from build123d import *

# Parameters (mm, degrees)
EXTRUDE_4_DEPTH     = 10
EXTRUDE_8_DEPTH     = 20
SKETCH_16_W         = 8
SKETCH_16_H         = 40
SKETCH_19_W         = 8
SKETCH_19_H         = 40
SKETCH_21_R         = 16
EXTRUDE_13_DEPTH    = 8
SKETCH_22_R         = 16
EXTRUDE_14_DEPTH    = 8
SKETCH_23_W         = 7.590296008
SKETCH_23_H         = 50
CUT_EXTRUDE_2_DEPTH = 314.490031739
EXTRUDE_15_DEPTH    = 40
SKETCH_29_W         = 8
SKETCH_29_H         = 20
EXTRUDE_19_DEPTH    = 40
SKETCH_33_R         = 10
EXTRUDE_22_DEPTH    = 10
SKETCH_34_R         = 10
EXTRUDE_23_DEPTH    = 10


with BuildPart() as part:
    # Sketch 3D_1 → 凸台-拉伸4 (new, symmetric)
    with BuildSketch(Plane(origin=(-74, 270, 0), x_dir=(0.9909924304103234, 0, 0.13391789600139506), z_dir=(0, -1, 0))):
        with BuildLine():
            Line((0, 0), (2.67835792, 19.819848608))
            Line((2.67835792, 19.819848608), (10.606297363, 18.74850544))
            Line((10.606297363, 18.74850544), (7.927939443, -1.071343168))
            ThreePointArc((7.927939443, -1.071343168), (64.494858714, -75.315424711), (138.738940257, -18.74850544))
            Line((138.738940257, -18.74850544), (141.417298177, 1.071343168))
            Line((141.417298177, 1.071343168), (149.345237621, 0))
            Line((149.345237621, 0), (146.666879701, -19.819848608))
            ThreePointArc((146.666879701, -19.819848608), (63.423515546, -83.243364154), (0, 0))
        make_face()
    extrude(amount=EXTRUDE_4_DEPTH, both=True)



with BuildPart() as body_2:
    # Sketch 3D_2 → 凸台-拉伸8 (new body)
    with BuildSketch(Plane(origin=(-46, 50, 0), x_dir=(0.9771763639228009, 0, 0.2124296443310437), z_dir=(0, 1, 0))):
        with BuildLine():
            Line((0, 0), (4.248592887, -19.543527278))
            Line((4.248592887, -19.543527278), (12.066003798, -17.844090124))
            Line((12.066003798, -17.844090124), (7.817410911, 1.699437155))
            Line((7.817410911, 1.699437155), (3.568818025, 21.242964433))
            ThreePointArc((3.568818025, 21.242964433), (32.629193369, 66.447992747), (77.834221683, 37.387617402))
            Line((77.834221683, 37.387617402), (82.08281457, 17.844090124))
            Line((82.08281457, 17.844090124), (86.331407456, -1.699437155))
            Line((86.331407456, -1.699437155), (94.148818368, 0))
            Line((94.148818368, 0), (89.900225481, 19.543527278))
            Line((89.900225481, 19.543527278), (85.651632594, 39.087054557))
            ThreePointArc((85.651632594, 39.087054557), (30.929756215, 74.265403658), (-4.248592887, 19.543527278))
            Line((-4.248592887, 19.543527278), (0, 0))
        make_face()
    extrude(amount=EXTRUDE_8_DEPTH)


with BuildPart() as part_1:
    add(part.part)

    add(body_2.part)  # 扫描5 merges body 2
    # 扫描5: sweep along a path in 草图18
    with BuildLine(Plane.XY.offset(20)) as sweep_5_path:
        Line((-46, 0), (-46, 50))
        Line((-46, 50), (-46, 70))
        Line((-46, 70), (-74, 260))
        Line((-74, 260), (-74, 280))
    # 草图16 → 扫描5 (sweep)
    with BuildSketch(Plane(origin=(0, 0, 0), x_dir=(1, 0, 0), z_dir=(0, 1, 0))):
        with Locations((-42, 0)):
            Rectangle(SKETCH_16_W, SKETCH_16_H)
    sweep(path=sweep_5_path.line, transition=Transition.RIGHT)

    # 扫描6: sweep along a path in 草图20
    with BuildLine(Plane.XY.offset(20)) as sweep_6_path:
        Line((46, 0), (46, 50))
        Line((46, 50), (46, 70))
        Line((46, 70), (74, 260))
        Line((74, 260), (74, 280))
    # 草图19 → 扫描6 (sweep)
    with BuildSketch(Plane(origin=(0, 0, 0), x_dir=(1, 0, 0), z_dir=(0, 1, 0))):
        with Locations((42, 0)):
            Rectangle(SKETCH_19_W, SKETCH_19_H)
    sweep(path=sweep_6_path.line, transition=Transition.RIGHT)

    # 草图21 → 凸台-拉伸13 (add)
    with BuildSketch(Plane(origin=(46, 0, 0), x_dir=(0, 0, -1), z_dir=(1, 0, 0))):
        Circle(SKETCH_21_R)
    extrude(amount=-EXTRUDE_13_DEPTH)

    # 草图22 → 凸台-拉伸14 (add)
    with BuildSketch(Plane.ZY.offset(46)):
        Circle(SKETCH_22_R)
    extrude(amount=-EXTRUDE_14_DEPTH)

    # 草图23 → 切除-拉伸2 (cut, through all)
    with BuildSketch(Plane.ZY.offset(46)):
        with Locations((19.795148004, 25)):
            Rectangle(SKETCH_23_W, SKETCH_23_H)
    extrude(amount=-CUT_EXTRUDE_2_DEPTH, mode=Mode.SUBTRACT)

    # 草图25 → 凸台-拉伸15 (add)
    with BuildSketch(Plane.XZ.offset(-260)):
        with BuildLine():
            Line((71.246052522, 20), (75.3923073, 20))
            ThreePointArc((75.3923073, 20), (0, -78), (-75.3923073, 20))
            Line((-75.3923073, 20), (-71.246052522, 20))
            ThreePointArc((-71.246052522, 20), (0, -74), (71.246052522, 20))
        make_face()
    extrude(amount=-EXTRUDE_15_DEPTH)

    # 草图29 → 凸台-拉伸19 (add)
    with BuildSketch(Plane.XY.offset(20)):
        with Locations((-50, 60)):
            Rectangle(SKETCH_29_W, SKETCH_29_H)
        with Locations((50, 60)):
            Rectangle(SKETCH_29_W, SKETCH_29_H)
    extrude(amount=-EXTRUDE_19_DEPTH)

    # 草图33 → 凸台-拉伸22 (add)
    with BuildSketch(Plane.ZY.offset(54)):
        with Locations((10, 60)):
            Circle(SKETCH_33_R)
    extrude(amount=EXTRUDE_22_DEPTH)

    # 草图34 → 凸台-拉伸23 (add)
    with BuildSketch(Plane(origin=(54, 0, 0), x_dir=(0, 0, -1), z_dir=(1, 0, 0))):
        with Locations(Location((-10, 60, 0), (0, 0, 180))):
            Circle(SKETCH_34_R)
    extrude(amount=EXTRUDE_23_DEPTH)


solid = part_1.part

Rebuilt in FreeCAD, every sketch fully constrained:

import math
import FreeCAD as App
import Part
import Sketcher

V = App.Vector
Q = App.Units.Quantity


def add_polygon(sketch, points):
    """Adds a closed chain of lines whose ends are joined by coincident constraints."""
    first, n = sketch.GeometryCount, len(points)
    for a, b in zip(points, points[1:] + points[:1]):
        sketch.addGeometry(Part.LineSegment(App.Vector(*a, 0), App.Vector(*b, 0)), False)
    for i in range(n):
        sketch.addConstraint(Sketcher.Constraint("Coincident", first + i, 2, first + (i + 1) % n, 1))

doc = App.newDocument("Part")
body = doc.addObject("PartDesign::Body", "Body")

# Sketch on XZ plane
sketch1 = body.newObject("Sketcher::SketchObject", "Sketch")
sketch1.AttachmentSupport = (doc.getObject("XZ_Plane"), [""])
sketch1.MapMode = "FlatFace"
sketch1.AttachmentOffset = App.Placement(V(0, 0, -270), App.Rotation())
sketch1.addGeometry([
    Part.LineSegment(V(-74, 20, 0), V(-74, 0, 0)),  # 0
    Part.ArcOfCircle(Part.Circle(V(0, 0, 0), V(0, 0, 1), 74), math.radians(-180), math.radians(0)),  # 1
    Part.LineSegment(V(74, 0, 0), V(74, 20, 0)),  # 2
    Part.LineSegment(V(74, 20, 0), V(66, 20, 0)),  # 3
    Part.LineSegment(V(66, 20, 0), V(66, 0, 0)),  # 4
    Part.ArcOfCircle(Part.Circle(V(0, 0, 0), V(0, 0, 1), 66), math.radians(-180), math.radians(0)),  # 5
    Part.LineSegment(V(-66, 0, 0), V(-66, 20, 0)),  # 6
    Part.LineSegment(V(-66, 20, 0), V(-74, 20, 0)),  # 7
], False)
sketch1.addConstraint([
    Sketcher.Constraint("Tangent", 0, 2, 1, 1),
    Sketcher.Constraint("Tangent", 1, 2, 2, 1),
    Sketcher.Constraint("Coincident", 2, 2, 3, 1),
    Sketcher.Constraint("Coincident", 3, 2, 4, 1),
    Sketcher.Constraint("Tangent", 4, 2, 5, 2),
    Sketcher.Constraint("Tangent", 5, 1, 6, 1),
    Sketcher.Constraint("Coincident", 6, 2, 7, 1),
    Sketcher.Constraint("Coincident", 7, 2, 0, 1),
    Sketcher.Constraint("Vertical", 0),
    Sketcher.Constraint("Vertical", 2),
    Sketcher.Constraint("Horizontal", 3),
    Sketcher.Constraint("Vertical", 4),
    Sketcher.Constraint("Vertical", 6),
    Sketcher.Constraint("Horizontal", 7),
    Sketcher.Constraint("Coincident", 1, 3, -1, 1),
    Sketcher.Constraint("Coincident", 5, 3, -1, 1),
    Sketcher.Constraint("Horizontal", 3, 2, 6, 2),
    Sketcher.Constraint("Radius", 1, Q("74 mm")),
    Sketcher.Constraint("Radius", 5, Q("66 mm")),
    Sketcher.Constraint("DistanceY", 0, 2, 0, 1, Q("20 mm")),
])
pad1 = body.newObject("PartDesign::Pad", "Pad")
pad1.Profile = sketch1
pad1.Length = 20
pad1.Midplane = True
body2 = doc.addObject("PartDesign::Body", "Body001")

# Sketch on XZ plane
sketch2 = body2.newObject("Sketcher::SketchObject", "Sketch001")
sketch2.AttachmentSupport = (doc.getObject("XZ_Plane001"), [""])
sketch2.MapMode = "FlatFace"
sketch2.AttachmentOffset = App.Placement(V(0, 0, -50), App.Rotation())
sketch2.addGeometry([
    Part.LineSegment(V(-46, 20, 0), V(-38, 20, 0)),  # 0
    Part.LineSegment(V(-38, 20, 0), V(-38, 0, 0)),  # 1
    Part.LineSegment(V(-38, 0, 0), V(-38, -20, 0)),  # 2
    Part.ArcOfCircle(Part.Circle(V(0, -20, 0), V(0, 0, 1), 38), math.radians(180), math.radians(360)),  # 3
    Part.LineSegment(V(38, -20, 0), V(38, 0, 0)),  # 4
    Part.LineSegment(V(38, 0, 0), V(38, 20, 0)),  # 5
    Part.LineSegment(V(38, 20, 0), V(46, 20, 0)),  # 6
    Part.LineSegment(V(46, 20, 0), V(46, 0, 0)),  # 7
    Part.LineSegment(V(46, 0, 0), V(46, -20, 0)),  # 8
    Part.ArcOfCircle(Part.Circle(V(0, -20, 0), V(0, 0, 1), 46), math.radians(180), math.radians(360)),  # 9
    Part.LineSegment(V(-46, -20, 0), V(-46, 20, 0)),  # 10
], False)
sketch2.addConstraint([
    Sketcher.Constraint("Coincident", 0, 2, 1, 1),
    Sketcher.Constraint("Coincident", 1, 2, 2, 1),
    Sketcher.Constraint("Tangent", 2, 2, 3, 1),
    Sketcher.Constraint("Tangent", 3, 2, 4, 1),
    Sketcher.Constraint("Coincident", 4, 2, 5, 1),
    Sketcher.Constraint("Coincident", 5, 2, 6, 1),
    Sketcher.Constraint("Coincident", 6, 2, 7, 1),
    Sketcher.Constraint("Coincident", 7, 2, 8, 1),
    Sketcher.Constraint("Tangent", 8, 2, 9, 2),
    Sketcher.Constraint("Tangent", 9, 1, 10, 1),
    Sketcher.Constraint("Coincident", 10, 2, 0, 1),
    Sketcher.Constraint("Horizontal", 0),
    Sketcher.Constraint("Vertical", 1),
    Sketcher.Constraint("Vertical", 2),
    Sketcher.Constraint("Vertical", 4),
    Sketcher.Constraint("Vertical", 5),
    Sketcher.Constraint("Horizontal", 6),
    Sketcher.Constraint("Vertical", 7),
    Sketcher.Constraint("Vertical", 8),
    Sketcher.Constraint("Vertical", 10),
    Sketcher.Constraint("Coincident", 9, 3, 3, 3),
    Sketcher.Constraint("Symmetric", 0, 2, 3, 2, -1, 1),
    Sketcher.Constraint("PointOnObject", 1, 2, -1),
    Sketcher.Constraint("PointOnObject", 4, 2, -1),
    Sketcher.Constraint("PointOnObject", 7, 2, -1),
    Sketcher.Constraint("Horizontal", 0, 2, 5, 2),
    Sketcher.Constraint("Radius", 3, Q("38 mm")),
    Sketcher.Constraint("Radius", 9, Q("46 mm")),
    Sketcher.Constraint("DistanceY", 1, 2, 1, 1, Q("20 mm")),
])
pad2 = body2.newObject("PartDesign::Pad", "Pad001")
pad2.Profile = sketch2
pad2.Length = 20
pad2.Reversed = True
body.AllowCompound = True
doc.recompute()

boolean = body.newObject("PartDesign::Boolean", "Boolean")
boolean.Type = "Fuse"
boolean.addObjects([body2])

# Sketch on XZ plane
sketch3 = body.newObject("Sketcher::SketchObject", "Sketch002")
sketch3.AttachmentSupport = (doc.getObject("XZ_Plane"), [""])
sketch3.MapMode = "FlatFace"
add_polygon(sketch3, [(-46, -20), (-46, 20), (-38, 20), (-38, -20)])  # lines 0-3
sketch3.addConstraint([
    Sketcher.Constraint("Vertical", 0),
    Sketcher.Constraint("Horizontal", 1),
    Sketcher.Constraint("Vertical", 2),
    Sketcher.Constraint("Horizontal", 3),
    Sketcher.Constraint("DistanceX", 1, 1, 1, 2, Q("8 mm")),
    Sketcher.Constraint("DistanceY", 0, 1, 0, 2, Q("40 mm")),
    Sketcher.Constraint("DistanceX", 0, 2, -1, 1, Q("46 mm")),
    Sketcher.Constraint("DistanceY", -1, 1, 0, 2, Q("20 mm")),
])

# Sketch on XY plane
sketch4 = body.newObject("Sketcher::SketchObject", "Sketch003")
sketch4.AttachmentSupport = (doc.getObject("XY_Plane"), [""])
sketch4.MapMode = "FlatFace"
sketch4.AttachmentOffset = App.Placement(V(0, 0, 20), App.Rotation())
sketch4.addGeometry([
    Part.LineSegment(V(-46, 0, 0), V(-46, 70, 0)),
    Part.LineSegment(V(-46, 70, 0), V(-74, 260, 0)),
    Part.LineSegment(V(-74, 260, 0), V(-74, 280, 0)),
], False)
sketch4.addConstraint([
    Sketcher.Constraint("Coincident", 0, 2, 1, 1),
    Sketcher.Constraint("Coincident", 1, 2, 2, 1),
    Sketcher.Constraint("Vertical", 0),
    Sketcher.Constraint("Vertical", 2),
    Sketcher.Constraint("PointOnObject", 0, 1, -1),
    Sketcher.Constraint("DistanceY", 0, 1, 0, 2, Q("70 mm")),
    Sketcher.Constraint("DistanceY", 2, 1, 2, 2, Q("20 mm")),
    Sketcher.Constraint("DistanceX", 0, 1, -1, 1, Q("46 mm")),
    Sketcher.Constraint("DistanceX", 1, 2, -1, 1, Q("74 mm")),
    Sketcher.Constraint("DistanceY", -1, 1, 1, 2, Q("260 mm")),
])
doc.recompute()

additivepipe = body.newObject("PartDesign::AdditivePipe", "AdditivePipe")
additivepipe.Profile = sketch3
additivepipe.Spine = (sketch4, ["Edge1", "Edge2", "Edge3"])
additivepipe.Transition = "Right corner"

# Sketch on XZ plane
sketch5 = body.newObject("Sketcher::SketchObject", "Sketch004")
sketch5.AttachmentSupport = (doc.getObject("XZ_Plane"), [""])
sketch5.MapMode = "FlatFace"
add_polygon(sketch5, [(38, -20), (38, 20), (46, 20), (46, -20)])  # lines 0-3
sketch5.addConstraint([
    Sketcher.Constraint("Vertical", 0),
    Sketcher.Constraint("Horizontal", 1),
    Sketcher.Constraint("Vertical", 2),
    Sketcher.Constraint("Horizontal", 3),
    Sketcher.Constraint("DistanceX", 1, 1, 1, 2, Q("8 mm")),
    Sketcher.Constraint("DistanceY", 0, 1, 0, 2, Q("40 mm")),
    Sketcher.Constraint("DistanceX", -1, 1, 0, 2, Q("38 mm")),
    Sketcher.Constraint("DistanceY", -1, 1, 0, 2, Q("20 mm")),
])

# Sketch on XY plane
sketch6 = body.newObject("Sketcher::SketchObject", "Sketch005")
sketch6.AttachmentSupport = (doc.getObject("XY_Plane"), [""])
sketch6.MapMode = "FlatFace"
sketch6.AttachmentOffset = App.Placement(V(0, 0, 20), App.Rotation())
sketch6.addGeometry([
    Part.LineSegment(V(46, 0, 0), V(46, 70, 0)),
    Part.LineSegment(V(46, 70, 0), V(74, 260, 0)),
    Part.LineSegment(V(74, 260, 0), V(74, 280, 0)),
], False)
sketch6.addConstraint([
    Sketcher.Constraint("Coincident", 0, 2, 1, 1),
    Sketcher.Constraint("Coincident", 1, 2, 2, 1),
    Sketcher.Constraint("Vertical", 0),
    Sketcher.Constraint("Vertical", 2),
    Sketcher.Constraint("PointOnObject", 0, 1, -1),
    Sketcher.Constraint("DistanceY", 0, 1, 0, 2, Q("70 mm")),
    Sketcher.Constraint("DistanceY", 2, 1, 2, 2, Q("20 mm")),
    Sketcher.Constraint("DistanceX", -1, 1, 0, 1, Q("46 mm")),
    Sketcher.Constraint("DistanceX", -1, 1, 1, 2, Q("74 mm")),
    Sketcher.Constraint("DistanceY", -1, 1, 1, 2, Q("260 mm")),
])
doc.recompute()

additivepipe2 = body.newObject("PartDesign::AdditivePipe", "AdditivePipe001")
additivepipe2.Profile = sketch5
additivepipe2.Spine = (sketch6, ["Edge1", "Edge2", "Edge3"])
additivepipe2.Transition = "Right corner"

# Sketch on YZ plane
sketch7 = body.newObject("Sketcher::SketchObject", "Sketch006")
sketch7.AttachmentSupport = (doc.getObject("YZ_Plane"), [""])
sketch7.MapMode = "FlatFace"
sketch7.AttachmentOffset = App.Placement(V(0, 0, 46), App.Rotation())
sketch7.addGeometry(Part.Circle(V(0, 0, 0), V(0, 0, 1), 16), False)
sketch7.addConstraint([
    Sketcher.Constraint("Coincident", 0, 3, -1, 1),
    Sketcher.Constraint("Diameter", 0, Q("32 mm")),
])
pad3 = body.newObject("PartDesign::Pad", "Pad002")
pad3.Profile = sketch7
pad3.Length = 8
pad3.Reversed = True

# Sketch on YZ plane
sketch8 = body.newObject("Sketcher::SketchObject", "Sketch007")
sketch8.AttachmentSupport = (doc.getObject("YZ_Plane"), [""])
sketch8.MapMode = "FlatFace"
sketch8.AttachmentOffset = App.Placement(V(0, 0, -46), App.Rotation())
sketch8.addGeometry(Part.Circle(V(0, 0, 0), V(0, 0, 1), 16), False)
sketch8.addConstraint([
    Sketcher.Constraint("Coincident", 0, 3, -1, 1),
    Sketcher.Constraint("Diameter", 0, Q("32 mm")),
])
pad4 = body.newObject("PartDesign::Pad", "Pad003")
pad4.Profile = sketch8
pad4.Length = 8

# Sketch on YZ plane
sketch9 = body.newObject("Sketcher::SketchObject", "Sketch008")
sketch9.AttachmentSupport = (doc.getObject("YZ_Plane"), [""])
sketch9.MapMode = "FlatFace"
sketch9.AttachmentOffset = App.Placement(V(0, 0, -46), App.Rotation())
add_polygon(sketch9, [(50, 16), (0, 16), (0, 24), (50, 24)])  # lines 0-3
sketch9.addConstraint([
    Sketcher.Constraint("Horizontal", 0),
    Sketcher.Constraint("Vertical", 1),
    Sketcher.Constraint("Horizontal", 2),
    Sketcher.Constraint("Vertical", 3),
    Sketcher.Constraint("PointOnObject", 0, 2, -2),
    Sketcher.Constraint("DistanceX", 0, 2, 0, 1, Q("50 mm")),
    Sketcher.Constraint("DistanceY", -1, 1, 0, 2, Q("16 mm")),
    Sketcher.Constraint("DistanceY", 1, 1, 1, 2, Q("7.590296 mm")),
])
pocket1 = body.newObject("PartDesign::Pocket", "Pocket")
pocket1.Profile = sketch9
pocket1.Type = "ThroughAll"
pocket1.Reversed = True

# Sketch on XZ plane
sketch10 = body.newObject("Sketcher::SketchObject", "Sketch009")
sketch10.AttachmentSupport = (doc.getObject("XZ_Plane"), [""])
sketch10.MapMode = "FlatFace"
sketch10.AttachmentOffset = App.Placement(V(0, 0, -260), App.Rotation())
sketch10.addGeometry([
    Part.LineSegment(V(75.4, 20, 0), V(71.2, 20, 0)),
    Part.ArcOfCircle(Part.Circle(V(0, 0, 0), V(0, 0, 1), 74), math.radians(164), math.radians(376)),
    Part.LineSegment(V(-71.2, 20, 0), V(-75.4, 20, 0)),
    Part.ArcOfCircle(Part.Circle(V(0, 0, 0), V(0, 0, 1), 78), math.radians(165), math.radians(375)),
], False)
sketch10.addConstraint([
    Sketcher.Constraint("Coincident", 0, 2, 1, 2),
    Sketcher.Constraint("Coincident", 1, 1, 2, 1),
    Sketcher.Constraint("Coincident", 2, 2, 3, 1),
    Sketcher.Constraint("Coincident", 3, 2, 0, 1),
    Sketcher.Constraint("Horizontal", 0),
    Sketcher.Constraint("Horizontal", 2),
    Sketcher.Constraint("Coincident", 1, 3, -1, 1),
    Sketcher.Constraint("Coincident", 3, 3, -1, 1),
    Sketcher.Constraint("Horizontal", 0, 2, 1, 1),
    Sketcher.Constraint("Radius", 1, Q("74 mm")),
    Sketcher.Constraint("Radius", 3, Q("78 mm")),
    Sketcher.Constraint("DistanceY", -1, 1, 0, 2, Q("20 mm")),
])
pad5 = body.newObject("PartDesign::Pad", "Pad004")
pad5.Profile = sketch10
pad5.Length = 40
pad5.Reversed = True

# Sketch on XY plane
sketch11 = body.newObject("Sketcher::SketchObject", "Sketch010")
sketch11.AttachmentSupport = (doc.getObject("XY_Plane"), [""])
sketch11.MapMode = "FlatFace"
sketch11.AttachmentOffset = App.Placement(V(0, 0, 20), App.Rotation())
add_polygon(sketch11, [(-54, 70), (-54, 50), (-46, 50), (-46, 70)])  # lines 0-3
add_polygon(sketch11, [(46, 70), (46, 50), (54, 50), (54, 70)])  # lines 4-7
sketch11.addConstraint([
    Sketcher.Constraint("Vertical", 0),
    Sketcher.Constraint("Horizontal", 1),
    Sketcher.Constraint("Vertical", 2),
    Sketcher.Constraint("Horizontal", 3),
    Sketcher.Constraint("Vertical", 4),
    Sketcher.Constraint("Horizontal", 5),
    Sketcher.Constraint("Vertical", 6),
    Sketcher.Constraint("Horizontal", 7),
    Sketcher.Constraint("Symmetric", 1, 2, 4, 2, -2),
    Sketcher.Constraint("Symmetric", 3, 2, 6, 2, -2),
    Sketcher.Constraint("DistanceX", 1, 1, 1, 2, Q("8 mm")),
    Sketcher.Constraint("DistanceY", 0, 2, 0, 1, Q("20 mm")),
    Sketcher.Constraint("DistanceX", 0, 2, -1, 1, Q("54 mm")),
    Sketcher.Constraint("DistanceY", -1, 1, 0, 2, Q("50 mm")),
])
pad6 = body.newObject("PartDesign::Pad", "Pad005")
pad6.Profile = sketch11
pad6.Length = 40
pad6.Reversed = True

# Sketch on YZ plane
sketch12 = body.newObject("Sketcher::SketchObject", "Sketch011")
sketch12.AttachmentSupport = (doc.getObject("YZ_Plane"), [""])
sketch12.MapMode = "FlatFace"
sketch12.AttachmentOffset = App.Placement(V(0, 0, -54), App.Rotation())
sketch12.addGeometry(Part.Circle(V(60, 10, 0), V(0, 0, 1), 10), False)
sketch12.addConstraint([
    Sketcher.Constraint("Diameter", 0, Q("20 mm")),
    Sketcher.Constraint("DistanceX", -1, 1, 0, 3, Q("60 mm")),
    Sketcher.Constraint("DistanceY", -1, 1, 0, 3, Q("10 mm")),
])
pad7 = body.newObject("PartDesign::Pad", "Pad006")
pad7.Profile = sketch12
pad7.Length = 10
pad7.Reversed = True

# Sketch on YZ plane
sketch13 = body.newObject("Sketcher::SketchObject", "Sketch012")
sketch13.AttachmentSupport = (doc.getObject("YZ_Plane"), [""])
sketch13.MapMode = "FlatFace"
sketch13.AttachmentOffset = App.Placement(V(0, 0, 54), App.Rotation())
sketch13.addGeometry(Part.Circle(V(60, 10, 0), V(0, 0, 1), 10), False)
sketch13.addConstraint([
    Sketcher.Constraint("Diameter", 0, Q("20 mm")),
    Sketcher.Constraint("DistanceX", -1, 1, 0, 3, Q("60 mm")),
    Sketcher.Constraint("DistanceY", -1, 1, 0, 3, Q("10 mm")),
])
pad8 = body.newObject("PartDesign::Pad", "Pad007")
pad8.Profile = sketch13
pad8.Length = 10

doc.recompute()
